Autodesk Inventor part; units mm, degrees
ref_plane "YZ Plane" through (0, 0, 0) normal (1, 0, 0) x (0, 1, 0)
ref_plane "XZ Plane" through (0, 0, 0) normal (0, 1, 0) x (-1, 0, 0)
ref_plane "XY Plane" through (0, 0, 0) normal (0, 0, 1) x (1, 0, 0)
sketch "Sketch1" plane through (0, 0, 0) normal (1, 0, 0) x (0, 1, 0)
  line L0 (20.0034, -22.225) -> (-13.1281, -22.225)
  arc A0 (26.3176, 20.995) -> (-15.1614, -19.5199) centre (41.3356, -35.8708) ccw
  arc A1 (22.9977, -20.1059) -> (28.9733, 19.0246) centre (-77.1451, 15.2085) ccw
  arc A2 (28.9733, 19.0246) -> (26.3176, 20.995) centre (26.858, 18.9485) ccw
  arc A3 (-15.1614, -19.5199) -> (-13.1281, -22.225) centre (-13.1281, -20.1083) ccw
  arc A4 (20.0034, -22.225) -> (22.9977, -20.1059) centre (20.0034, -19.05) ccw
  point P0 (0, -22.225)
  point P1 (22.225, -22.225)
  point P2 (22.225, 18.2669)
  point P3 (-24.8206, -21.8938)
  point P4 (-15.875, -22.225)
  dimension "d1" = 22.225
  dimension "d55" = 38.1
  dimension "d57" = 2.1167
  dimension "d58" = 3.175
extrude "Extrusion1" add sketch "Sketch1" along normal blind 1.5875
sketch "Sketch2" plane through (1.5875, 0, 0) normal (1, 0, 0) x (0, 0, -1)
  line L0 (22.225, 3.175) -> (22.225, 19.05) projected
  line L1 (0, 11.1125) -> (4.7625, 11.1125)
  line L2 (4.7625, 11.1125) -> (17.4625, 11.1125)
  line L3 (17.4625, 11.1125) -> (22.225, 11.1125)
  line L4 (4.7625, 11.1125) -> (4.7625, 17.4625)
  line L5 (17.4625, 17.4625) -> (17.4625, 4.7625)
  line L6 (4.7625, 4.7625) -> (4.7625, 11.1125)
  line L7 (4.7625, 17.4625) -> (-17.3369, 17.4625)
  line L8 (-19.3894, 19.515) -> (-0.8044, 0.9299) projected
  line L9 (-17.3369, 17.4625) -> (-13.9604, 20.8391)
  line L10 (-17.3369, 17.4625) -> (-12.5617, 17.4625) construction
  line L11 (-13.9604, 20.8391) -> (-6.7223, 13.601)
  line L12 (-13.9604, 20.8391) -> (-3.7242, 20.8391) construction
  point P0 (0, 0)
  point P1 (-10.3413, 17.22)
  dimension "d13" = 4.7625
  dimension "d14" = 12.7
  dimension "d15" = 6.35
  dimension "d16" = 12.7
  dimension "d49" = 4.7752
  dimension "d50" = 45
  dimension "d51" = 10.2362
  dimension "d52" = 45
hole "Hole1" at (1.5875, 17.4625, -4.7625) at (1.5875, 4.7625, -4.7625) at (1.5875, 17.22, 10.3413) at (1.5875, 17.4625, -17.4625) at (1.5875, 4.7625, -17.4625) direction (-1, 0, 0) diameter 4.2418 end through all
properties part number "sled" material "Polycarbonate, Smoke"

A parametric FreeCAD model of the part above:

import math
import FreeCAD as App
import Part
import Sketcher
Q = App.Units.Quantity

doc = App.newDocument("Part")
body = doc.addObject("PartDesign::Body", "Body")

# Sketch on YZ plane
sketch1 = body.newObject("Sketcher::SketchObject", "Sketch")
sketch1.AttachmentSupport = (doc.getObject("YZ_Plane"), [""])
sketch1.MapMode = "FlatFace"
sketch1.addGeometry([
    Part.LineSegment(App.Vector(-13.1281, -22.225, 0), App.Vector(20.0034, -22.225, 0)),  # 0
    Part.ArcOfCircle(Part.Circle(App.Vector(20.0034, -19.05, 0), App.Vector(0, 0, 1), 3.175), math.radians(-90), math.radians(-19.424519)),  # 1
    Part.ArcOfCircle(Part.Circle(App.Vector(-77.143817, 15.208179, 0), App.Vector(0, 0, 1), 106.185722), math.radians(-19.424777), math.radians(2.059711)),  # 2
    Part.ArcOfCircle(Part.Circle(App.Vector(26.858, 18.9485, 0), App.Vector(0, 0, 1), 2.116668), math.radians(2.060383), math.radians(104.791923)),  # 3
    Part.ArcOfCircle(Part.Circle(App.Vector(41.3356, -35.8708, 0), App.Vector(0, 0, 1), 58.81547), math.radians(104.793791), math.radians(163.858931)),  # 4
    Part.ArcOfCircle(Part.Circle(App.Vector(-13.1281, -20.1083, 0), App.Vector(0, 0, 1), 2.116725), math.radians(163.860519), math.radians(270)),  # 5
], False)
sketch1.addConstraint([
    Sketcher.Constraint("Tangent", 0, 2, 1, 1),
    Sketcher.Constraint("Tangent", 1, 2, 2, 1),
    Sketcher.Constraint("Tangent", 2, 2, 3, 1),
    Sketcher.Constraint("Tangent", 3, 2, 4, 1),
    Sketcher.Constraint("Tangent", 4, 2, 5, 1),
    Sketcher.Constraint("Tangent", 5, 2, 0, 1),
    Sketcher.Constraint("Horizontal", 0),
    Sketcher.Constraint("Equal", 3, 5),
    Sketcher.Constraint("Radius", 1, Q("0.125 in")),
    Sketcher.Constraint("Radius", 3, Q("2.1167 mm")),
    Sketcher.Constraint("DistanceY", 0, 2, -1, 1, Q("0.875 in")),
    Sketcher.Constraint("Radius", 2, Q("106.1857 mm")),
    Sketcher.Constraint("Radius", 4, Q("58.8155 mm")),
    Sketcher.Constraint("DistanceX", 0, 1, 0, 2, Q("1.3044 in")),
    Sketcher.Constraint("DistanceY", -1, 1, 3, 3, Q("0.746 in")),
    Sketcher.Constraint("DistanceX", -1, 1, 3, 3, Q("1.0574 in")),
    Sketcher.Constraint("DistanceX", 4, 2, -1, 1, Q("0.5969 in")),
])
pad1 = body.newObject("PartDesign::Pad", "Pad")
pad1.Profile = sketch1
pad1.Length = Q("0.0625 in")

# Sketch on YZ plane
sketch2 = body.newObject("Sketcher::SketchObject", "Sketch001")
sketch2.AttachmentSupport = (doc.getObject("YZ_Plane"), [""])
sketch2.MapMode = "FlatFace"
sketch2.AttachmentOffset = App.Placement(App.Vector(0, 0, 0.0625 * 25.4), App.Rotation())
sketch2.addGeometry([
    Part.Circle(App.Vector(17.4625, -4.7625, 0), App.Vector(0, 0, 1), 2.1209),  # 0
    Part.Circle(App.Vector(4.7625, -4.7625, 0), App.Vector(0, 0, 1), 2.1209),  # 1
    Part.Circle(App.Vector(17.22, 10.3413, 0), App.Vector(0, 0, 1), 2.1209),  # 2
    Part.Circle(App.Vector(17.4625, -17.4625, 0), App.Vector(0, 0, 1), 2.1209),  # 3
    Part.Circle(App.Vector(4.7625, -17.4625, 0), App.Vector(0, 0, 1), 2.1209),  # 4
], False)
sketch2.addConstraint([
    Sketcher.Constraint("Equal", 0, 1),
    Sketcher.Constraint("Equal", 1, 2),
    Sketcher.Constraint("Equal", 2, 3),
    Sketcher.Constraint("Equal", 3, 4),
    Sketcher.Constraint("Horizontal", 0, 3, 1, 3),
    Sketcher.Constraint("Horizontal", 3, 3, 4, 3),
    Sketcher.Constraint("Vertical", 0, 3, 3, 3),
    Sketcher.Constraint("Vertical", 1, 3, 4, 3),
    Sketcher.Constraint("Diameter", 0, Q("0.167 in")),
    Sketcher.Constraint("DistanceX", 1, 3, 0, 3, Q("0.5 in")),
    Sketcher.Constraint("DistanceY", 3, 3, 0, 3, Q("0.5 in")),
    Sketcher.Constraint("DistanceX", -1, 1, 0, 3, Q("0.6875 in")),
    Sketcher.Constraint("DistanceY", 0, 3, -1, 1, Q("0.1875 in")),
    Sketcher.Constraint("DistanceX", -1, 1, 2, 3, Q("17.22 mm")),
    Sketcher.Constraint("DistanceY", -1, 1, 2, 3, Q("10.3413 mm")),
])
doc.recompute()
hole = body.newObject("PartDesign::Hole", "Hole")
hole.Profile = sketch2
hole.ThreadType = "None"
hole.Diameter = Q("0.167 in")
hole.DepthType = "ThroughAll"

doc.recompute()
